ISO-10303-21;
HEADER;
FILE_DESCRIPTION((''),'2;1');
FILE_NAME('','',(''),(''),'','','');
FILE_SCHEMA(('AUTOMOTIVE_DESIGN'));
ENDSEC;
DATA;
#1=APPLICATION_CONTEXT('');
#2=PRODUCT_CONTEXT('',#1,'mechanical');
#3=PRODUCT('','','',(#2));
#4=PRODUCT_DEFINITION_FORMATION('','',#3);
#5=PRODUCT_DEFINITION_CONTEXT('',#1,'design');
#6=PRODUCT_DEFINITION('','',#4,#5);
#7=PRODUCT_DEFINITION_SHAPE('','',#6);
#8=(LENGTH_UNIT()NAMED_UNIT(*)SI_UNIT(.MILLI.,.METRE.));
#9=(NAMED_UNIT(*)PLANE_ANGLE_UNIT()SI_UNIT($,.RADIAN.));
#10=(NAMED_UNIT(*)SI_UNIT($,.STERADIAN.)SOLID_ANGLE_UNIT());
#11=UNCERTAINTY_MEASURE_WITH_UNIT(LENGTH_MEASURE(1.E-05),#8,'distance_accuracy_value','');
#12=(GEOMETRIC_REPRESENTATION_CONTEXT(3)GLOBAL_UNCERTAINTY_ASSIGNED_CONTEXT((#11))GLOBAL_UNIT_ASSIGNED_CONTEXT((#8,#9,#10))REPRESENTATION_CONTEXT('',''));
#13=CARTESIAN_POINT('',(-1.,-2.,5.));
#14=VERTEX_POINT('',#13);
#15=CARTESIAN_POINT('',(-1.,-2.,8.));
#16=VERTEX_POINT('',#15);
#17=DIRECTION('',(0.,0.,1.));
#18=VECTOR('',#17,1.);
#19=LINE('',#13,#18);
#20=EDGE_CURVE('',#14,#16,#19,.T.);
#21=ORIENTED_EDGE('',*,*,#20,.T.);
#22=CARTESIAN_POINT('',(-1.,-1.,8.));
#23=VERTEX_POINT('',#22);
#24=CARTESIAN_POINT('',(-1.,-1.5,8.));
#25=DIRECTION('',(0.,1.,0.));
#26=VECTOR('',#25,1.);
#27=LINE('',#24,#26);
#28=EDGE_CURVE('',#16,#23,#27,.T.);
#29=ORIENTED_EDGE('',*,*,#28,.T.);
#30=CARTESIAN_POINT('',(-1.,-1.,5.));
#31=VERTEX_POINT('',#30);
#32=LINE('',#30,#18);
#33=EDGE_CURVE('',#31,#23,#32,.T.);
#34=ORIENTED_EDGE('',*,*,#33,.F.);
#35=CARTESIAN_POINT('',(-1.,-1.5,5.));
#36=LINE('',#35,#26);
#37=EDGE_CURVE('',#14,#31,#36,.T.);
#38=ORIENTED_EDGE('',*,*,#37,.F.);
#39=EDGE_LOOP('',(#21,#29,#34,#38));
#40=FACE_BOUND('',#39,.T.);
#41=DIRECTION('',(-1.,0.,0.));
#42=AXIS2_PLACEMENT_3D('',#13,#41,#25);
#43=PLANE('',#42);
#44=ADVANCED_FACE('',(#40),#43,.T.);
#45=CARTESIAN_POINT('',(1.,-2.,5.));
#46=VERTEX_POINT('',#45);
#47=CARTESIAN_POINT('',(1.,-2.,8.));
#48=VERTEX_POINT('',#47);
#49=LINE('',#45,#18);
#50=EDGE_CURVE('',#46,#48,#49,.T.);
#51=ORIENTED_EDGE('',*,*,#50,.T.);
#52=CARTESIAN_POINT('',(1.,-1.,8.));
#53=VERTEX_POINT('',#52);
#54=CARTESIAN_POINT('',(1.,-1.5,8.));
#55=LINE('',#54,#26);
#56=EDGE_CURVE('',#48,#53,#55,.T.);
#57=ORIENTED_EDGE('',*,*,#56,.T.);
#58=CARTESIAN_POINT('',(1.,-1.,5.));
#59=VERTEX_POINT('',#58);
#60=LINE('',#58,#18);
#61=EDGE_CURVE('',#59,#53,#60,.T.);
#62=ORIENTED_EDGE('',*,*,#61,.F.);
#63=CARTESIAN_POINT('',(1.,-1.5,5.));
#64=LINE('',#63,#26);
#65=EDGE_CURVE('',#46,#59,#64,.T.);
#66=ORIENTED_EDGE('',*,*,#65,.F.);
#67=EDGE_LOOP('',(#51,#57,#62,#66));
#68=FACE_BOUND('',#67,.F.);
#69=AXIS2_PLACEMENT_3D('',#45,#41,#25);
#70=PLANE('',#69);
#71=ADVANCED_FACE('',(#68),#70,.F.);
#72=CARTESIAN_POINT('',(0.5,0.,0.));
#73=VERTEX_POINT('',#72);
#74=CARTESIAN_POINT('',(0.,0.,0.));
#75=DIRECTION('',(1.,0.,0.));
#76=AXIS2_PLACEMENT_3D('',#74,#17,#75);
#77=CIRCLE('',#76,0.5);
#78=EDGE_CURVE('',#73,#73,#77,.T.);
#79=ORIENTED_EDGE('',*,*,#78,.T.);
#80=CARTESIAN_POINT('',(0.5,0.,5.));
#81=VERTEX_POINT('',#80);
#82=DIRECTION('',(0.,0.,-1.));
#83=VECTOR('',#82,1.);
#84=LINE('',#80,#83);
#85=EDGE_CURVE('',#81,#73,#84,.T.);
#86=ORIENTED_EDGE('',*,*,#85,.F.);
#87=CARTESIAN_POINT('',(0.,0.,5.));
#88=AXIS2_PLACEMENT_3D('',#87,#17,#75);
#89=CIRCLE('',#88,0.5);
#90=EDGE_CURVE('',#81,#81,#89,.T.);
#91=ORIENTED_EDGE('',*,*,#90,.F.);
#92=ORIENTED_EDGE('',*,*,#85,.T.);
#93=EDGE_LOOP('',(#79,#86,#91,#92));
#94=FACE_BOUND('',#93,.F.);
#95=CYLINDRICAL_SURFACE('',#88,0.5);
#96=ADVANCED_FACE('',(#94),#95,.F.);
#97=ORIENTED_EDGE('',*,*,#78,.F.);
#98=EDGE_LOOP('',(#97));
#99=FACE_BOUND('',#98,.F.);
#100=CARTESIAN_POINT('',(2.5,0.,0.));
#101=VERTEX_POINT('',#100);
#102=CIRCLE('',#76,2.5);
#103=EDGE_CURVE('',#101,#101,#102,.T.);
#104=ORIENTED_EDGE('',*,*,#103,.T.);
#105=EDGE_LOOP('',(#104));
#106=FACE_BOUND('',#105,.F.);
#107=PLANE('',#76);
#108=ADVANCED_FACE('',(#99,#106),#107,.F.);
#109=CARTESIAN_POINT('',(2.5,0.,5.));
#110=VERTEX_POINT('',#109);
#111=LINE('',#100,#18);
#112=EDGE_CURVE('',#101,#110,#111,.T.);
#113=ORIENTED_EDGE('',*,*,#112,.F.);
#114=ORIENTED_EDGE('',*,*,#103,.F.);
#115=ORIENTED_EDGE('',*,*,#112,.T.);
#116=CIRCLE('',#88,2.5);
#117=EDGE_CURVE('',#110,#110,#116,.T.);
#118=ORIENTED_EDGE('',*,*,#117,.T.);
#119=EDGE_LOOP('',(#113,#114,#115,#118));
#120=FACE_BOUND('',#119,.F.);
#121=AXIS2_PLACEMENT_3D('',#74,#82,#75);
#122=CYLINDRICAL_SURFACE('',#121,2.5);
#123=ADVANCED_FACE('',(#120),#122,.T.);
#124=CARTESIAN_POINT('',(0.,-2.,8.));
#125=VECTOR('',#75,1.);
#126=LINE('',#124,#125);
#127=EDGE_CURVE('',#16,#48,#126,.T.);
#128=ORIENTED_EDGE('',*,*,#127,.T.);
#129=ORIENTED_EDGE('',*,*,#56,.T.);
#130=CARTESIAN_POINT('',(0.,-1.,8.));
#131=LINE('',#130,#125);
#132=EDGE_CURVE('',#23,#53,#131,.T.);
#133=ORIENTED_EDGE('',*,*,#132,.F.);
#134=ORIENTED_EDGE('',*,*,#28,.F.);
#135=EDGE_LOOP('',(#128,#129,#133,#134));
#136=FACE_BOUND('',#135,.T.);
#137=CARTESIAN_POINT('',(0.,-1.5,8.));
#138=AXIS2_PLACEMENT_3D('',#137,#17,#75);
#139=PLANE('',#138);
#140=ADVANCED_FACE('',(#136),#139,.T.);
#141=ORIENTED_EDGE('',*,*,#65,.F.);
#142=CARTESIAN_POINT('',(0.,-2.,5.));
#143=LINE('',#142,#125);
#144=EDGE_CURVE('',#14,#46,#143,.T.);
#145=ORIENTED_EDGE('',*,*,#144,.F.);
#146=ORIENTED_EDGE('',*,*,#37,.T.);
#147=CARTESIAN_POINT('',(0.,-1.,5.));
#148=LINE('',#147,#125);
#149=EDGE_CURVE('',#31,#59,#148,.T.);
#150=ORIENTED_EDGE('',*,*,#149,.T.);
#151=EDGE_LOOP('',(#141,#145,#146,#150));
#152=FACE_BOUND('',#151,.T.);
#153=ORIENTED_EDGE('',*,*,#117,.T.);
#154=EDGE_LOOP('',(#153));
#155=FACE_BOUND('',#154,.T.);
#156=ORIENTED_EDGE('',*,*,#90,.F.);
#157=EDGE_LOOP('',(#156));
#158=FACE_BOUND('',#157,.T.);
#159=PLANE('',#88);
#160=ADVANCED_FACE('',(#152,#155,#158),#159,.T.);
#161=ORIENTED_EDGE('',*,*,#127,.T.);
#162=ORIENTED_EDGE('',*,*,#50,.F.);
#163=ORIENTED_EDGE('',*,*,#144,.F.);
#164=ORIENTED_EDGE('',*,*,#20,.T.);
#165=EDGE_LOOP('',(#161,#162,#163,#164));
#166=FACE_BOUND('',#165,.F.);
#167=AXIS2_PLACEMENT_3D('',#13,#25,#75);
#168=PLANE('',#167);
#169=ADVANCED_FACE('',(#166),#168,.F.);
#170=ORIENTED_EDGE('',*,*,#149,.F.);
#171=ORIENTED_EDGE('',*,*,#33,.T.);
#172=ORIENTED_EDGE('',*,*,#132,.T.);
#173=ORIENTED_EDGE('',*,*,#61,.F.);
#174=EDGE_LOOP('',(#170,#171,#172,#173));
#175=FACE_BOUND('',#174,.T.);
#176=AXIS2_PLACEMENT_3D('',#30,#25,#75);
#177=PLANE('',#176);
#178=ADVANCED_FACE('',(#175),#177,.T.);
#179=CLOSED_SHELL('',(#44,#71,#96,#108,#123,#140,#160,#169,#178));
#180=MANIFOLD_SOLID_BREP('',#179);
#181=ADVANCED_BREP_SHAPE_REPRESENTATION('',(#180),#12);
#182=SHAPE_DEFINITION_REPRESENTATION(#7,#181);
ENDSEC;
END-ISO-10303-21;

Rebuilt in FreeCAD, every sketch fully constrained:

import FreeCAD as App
import Part
import Sketcher

V = App.Vector
Q = App.Units.Quantity

doc = App.newDocument("Part")
body = doc.addObject("PartDesign::Body", "Body")

# Sketch on XY plane
sketch1 = body.newObject("Sketcher::SketchObject", "Sketch")
sketch1.AttachmentSupport = (doc.getObject("XY_Plane"), [""])
sketch1.MapMode = "FlatFace"
sketch1.addGeometry(Part.Circle(V(0, 0, 0), V(0, 0, 1), 2.5), False)
sketch1.addConstraint([
    Sketcher.Constraint("Coincident", 0, 3, -1, 1),
    Sketcher.Constraint("Diameter", 0, Q("5 mm")),
])
pad1 = body.newObject("PartDesign::Pad", "Pad")
pad1.Profile = sketch1
pad1.Length = 5

# Sketch on XY plane
sketch2 = body.newObject("Sketcher::SketchObject", "Sketch001")
sketch2.AttachmentSupport = (doc.getObject("XY_Plane"), [""])
sketch2.MapMode = "FlatFace"
sketch2.AttachmentOffset = App.Placement(V(0, 0, 5), App.Rotation())
sketch2.addGeometry([
    Part.LineSegment(V(-1, -1, 0), V(-1, -2, 0)),
    Part.LineSegment(V(-1, -2, 0), V(1, -2, 0)),
    Part.LineSegment(V(1, -2, 0), V(1, -1, 0)),
    Part.LineSegment(V(1, -1, 0), V(-1, -1, 0)),
], False)
sketch2.addConstraint([
    Sketcher.Constraint("Coincident", 0, 2, 1, 1),
    Sketcher.Constraint("Coincident", 1, 2, 2, 1),
    Sketcher.Constraint("Coincident", 2, 2, 3, 1),
    Sketcher.Constraint("Coincident", 3, 2, 0, 1),
    Sketcher.Constraint("Vertical", 0),
    Sketcher.Constraint("Horizontal", 1),
    Sketcher.Constraint("Vertical", 2),
    Sketcher.Constraint("Horizontal", 3),
    Sketcher.Constraint("DistanceX", 1, 1, 1, 2, Q("2 mm")),
    Sketcher.Constraint("DistanceY", 0, 2, 0, 1, Q("1 mm")),
    Sketcher.Constraint("DistanceX", 0, 2, -1, 1, Q("1 mm")),
    Sketcher.Constraint("DistanceY", 0, 2, -1, 1, Q("2 mm")),
])
pad2 = body.newObject("PartDesign::Pad", "Pad001")
pad2.Profile = sketch2
pad2.Length = 3

# Sketch on XY plane
sketch3 = body.newObject("Sketcher::SketchObject", "Sketch002")
sketch3.AttachmentSupport = (doc.getObject("XY_Plane"), [""])
sketch3.MapMode = "FlatFace"
sketch3.AttachmentOffset = App.Placement(V(0, 0, 5), App.Rotation())
sketch3.addGeometry(Part.Circle(V(0, 0, 0), V(0, 0, 1), 0.5), False)
sketch3.addConstraint([
    Sketcher.Constraint("Coincident", 0, 3, -1, 1),
    Sketcher.Constraint("Diameter", 0, Q("1 mm")),
])
pocket1 = body.newObject("PartDesign::Pocket", "Pocket")
pocket1.Profile = sketch3
pocket1.Length = 25

doc.recompute()
